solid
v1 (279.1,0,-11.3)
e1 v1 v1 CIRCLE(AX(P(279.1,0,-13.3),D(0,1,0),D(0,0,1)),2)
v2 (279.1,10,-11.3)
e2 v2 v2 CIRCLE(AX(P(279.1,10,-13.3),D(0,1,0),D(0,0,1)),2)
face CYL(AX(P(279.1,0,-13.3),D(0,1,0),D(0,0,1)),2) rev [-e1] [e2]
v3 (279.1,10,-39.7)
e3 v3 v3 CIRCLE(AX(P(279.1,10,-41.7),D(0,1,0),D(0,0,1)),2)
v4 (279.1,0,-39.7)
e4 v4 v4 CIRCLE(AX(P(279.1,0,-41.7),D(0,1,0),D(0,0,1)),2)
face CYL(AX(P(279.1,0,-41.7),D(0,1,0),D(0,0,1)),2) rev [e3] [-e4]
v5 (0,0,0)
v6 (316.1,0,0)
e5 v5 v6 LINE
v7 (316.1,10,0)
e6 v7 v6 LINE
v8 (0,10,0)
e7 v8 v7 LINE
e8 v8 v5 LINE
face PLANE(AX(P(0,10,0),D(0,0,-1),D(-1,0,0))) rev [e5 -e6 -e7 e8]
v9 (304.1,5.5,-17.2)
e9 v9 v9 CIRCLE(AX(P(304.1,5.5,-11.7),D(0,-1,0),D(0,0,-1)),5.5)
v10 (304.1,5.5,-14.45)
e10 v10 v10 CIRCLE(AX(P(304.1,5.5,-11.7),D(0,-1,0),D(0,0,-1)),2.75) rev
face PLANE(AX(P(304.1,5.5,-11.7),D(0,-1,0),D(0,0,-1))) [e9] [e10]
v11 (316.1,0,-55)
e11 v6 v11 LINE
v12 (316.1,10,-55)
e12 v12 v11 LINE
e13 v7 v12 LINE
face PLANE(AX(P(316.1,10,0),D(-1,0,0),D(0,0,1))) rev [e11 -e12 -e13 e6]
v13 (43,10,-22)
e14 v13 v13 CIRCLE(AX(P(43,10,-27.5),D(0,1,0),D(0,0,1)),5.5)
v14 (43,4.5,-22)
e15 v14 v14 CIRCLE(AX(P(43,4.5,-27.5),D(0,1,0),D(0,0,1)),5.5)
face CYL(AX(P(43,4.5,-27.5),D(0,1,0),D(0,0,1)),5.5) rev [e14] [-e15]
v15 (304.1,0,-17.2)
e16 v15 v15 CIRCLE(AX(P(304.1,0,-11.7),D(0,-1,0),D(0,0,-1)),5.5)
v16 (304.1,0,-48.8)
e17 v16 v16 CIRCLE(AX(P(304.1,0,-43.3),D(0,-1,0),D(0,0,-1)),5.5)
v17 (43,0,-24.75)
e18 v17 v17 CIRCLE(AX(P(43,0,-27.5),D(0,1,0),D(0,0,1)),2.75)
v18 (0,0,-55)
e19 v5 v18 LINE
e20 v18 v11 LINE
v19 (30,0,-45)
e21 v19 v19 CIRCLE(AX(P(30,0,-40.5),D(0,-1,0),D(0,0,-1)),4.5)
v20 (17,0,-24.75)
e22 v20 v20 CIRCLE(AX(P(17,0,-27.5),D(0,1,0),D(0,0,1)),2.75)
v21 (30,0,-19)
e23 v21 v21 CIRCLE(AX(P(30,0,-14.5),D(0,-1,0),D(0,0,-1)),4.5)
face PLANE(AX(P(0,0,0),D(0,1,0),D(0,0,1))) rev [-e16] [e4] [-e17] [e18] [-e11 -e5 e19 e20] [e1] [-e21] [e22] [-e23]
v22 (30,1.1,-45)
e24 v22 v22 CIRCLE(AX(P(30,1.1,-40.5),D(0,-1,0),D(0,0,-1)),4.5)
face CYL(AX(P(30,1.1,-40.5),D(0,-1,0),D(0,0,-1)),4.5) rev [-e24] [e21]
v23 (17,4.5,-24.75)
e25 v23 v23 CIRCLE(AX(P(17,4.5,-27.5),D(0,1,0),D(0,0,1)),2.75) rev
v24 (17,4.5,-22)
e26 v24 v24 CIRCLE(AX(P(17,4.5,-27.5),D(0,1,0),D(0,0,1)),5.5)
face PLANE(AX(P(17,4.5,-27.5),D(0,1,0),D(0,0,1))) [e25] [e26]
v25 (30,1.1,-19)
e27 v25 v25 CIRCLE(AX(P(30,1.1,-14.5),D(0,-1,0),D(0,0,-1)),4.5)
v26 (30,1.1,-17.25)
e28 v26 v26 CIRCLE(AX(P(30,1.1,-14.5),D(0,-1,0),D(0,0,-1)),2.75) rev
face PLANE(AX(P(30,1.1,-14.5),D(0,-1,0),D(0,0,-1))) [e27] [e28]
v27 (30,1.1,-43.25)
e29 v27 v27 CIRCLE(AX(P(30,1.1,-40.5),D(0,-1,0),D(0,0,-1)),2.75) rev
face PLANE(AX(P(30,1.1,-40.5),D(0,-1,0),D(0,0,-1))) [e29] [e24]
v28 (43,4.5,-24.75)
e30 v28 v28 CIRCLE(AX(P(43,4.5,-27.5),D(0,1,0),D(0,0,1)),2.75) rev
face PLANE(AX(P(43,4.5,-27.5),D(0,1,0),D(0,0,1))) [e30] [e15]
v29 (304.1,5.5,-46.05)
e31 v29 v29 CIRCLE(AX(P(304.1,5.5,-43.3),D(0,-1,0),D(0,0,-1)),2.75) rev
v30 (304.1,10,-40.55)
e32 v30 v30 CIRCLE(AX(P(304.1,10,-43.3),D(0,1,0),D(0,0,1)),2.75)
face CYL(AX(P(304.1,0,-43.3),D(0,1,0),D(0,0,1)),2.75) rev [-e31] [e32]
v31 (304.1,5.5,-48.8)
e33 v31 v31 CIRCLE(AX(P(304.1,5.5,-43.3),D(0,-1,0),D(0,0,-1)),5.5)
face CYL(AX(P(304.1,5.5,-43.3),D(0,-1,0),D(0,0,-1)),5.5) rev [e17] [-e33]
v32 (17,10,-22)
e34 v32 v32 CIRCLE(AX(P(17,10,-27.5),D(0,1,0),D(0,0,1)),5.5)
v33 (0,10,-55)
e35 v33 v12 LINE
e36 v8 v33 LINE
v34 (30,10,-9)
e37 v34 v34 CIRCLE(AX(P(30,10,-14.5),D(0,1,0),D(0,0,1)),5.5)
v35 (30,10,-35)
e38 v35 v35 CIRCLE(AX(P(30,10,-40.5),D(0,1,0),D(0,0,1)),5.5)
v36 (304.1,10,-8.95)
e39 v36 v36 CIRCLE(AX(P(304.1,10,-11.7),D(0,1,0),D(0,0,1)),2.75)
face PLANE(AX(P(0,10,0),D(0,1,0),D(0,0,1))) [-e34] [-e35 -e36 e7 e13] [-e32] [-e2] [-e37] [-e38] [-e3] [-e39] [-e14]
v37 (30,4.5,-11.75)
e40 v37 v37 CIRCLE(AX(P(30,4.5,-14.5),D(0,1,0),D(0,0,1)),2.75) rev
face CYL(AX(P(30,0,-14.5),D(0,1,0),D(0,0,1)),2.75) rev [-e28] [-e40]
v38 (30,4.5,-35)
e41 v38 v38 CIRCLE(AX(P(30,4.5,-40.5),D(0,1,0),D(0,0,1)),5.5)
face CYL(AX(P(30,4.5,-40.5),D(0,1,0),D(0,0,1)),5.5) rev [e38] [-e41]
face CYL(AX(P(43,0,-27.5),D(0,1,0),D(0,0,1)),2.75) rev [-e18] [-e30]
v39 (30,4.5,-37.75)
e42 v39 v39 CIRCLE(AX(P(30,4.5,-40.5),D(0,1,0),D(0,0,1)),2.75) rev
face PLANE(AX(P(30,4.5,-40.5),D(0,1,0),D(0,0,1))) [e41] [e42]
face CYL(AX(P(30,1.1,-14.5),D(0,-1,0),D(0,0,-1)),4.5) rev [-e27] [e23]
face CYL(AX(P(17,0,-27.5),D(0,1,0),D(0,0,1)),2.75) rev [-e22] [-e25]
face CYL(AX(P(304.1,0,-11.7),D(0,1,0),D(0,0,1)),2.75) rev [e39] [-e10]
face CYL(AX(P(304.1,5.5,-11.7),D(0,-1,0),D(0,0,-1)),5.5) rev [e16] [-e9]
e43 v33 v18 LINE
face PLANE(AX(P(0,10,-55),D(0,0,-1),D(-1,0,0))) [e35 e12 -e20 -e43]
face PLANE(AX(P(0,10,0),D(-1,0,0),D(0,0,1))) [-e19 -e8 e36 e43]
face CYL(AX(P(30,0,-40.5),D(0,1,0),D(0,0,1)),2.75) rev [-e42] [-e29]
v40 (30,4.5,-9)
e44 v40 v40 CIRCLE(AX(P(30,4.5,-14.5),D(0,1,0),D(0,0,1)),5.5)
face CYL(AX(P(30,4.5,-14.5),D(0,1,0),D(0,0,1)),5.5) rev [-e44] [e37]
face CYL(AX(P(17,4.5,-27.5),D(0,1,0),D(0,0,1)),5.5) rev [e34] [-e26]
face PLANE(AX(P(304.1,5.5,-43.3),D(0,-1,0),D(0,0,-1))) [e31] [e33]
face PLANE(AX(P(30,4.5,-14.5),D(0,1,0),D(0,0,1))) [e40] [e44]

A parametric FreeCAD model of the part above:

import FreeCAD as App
import Part
import Sketcher

V = App.Vector


def add_polygon(sketch, points):
    """Adds a closed chain of lines whose ends are joined by coincident constraints."""
    first, n = sketch.GeometryCount, len(points)
    for a, b in zip(points, points[1:] + points[:1]):
        sketch.addGeometry(Part.LineSegment(App.Vector(*a, 0), App.Vector(*b, 0)), False)
    for i in range(n):
        sketch.addConstraint(Sketcher.Constraint("Coincident", first + i, 2, first + (i + 1) % n, 1))

doc = App.newDocument("Part")
body = doc.addObject("PartDesign::Body", "Body")

# Sketch on XZ plane
sketch1 = body.newObject("Sketcher::SketchObject", "Sketch")
sketch1.AttachmentSupport = (doc.getObject("XZ_Plane"), [""])
sketch1.MapMode = "FlatFace"
add_polygon(sketch1, [(0, -55), (0, 0), (316, 0), (316, -55)])  # lines 0-3
sketch1.addConstraint([
    Sketcher.Constraint("Vertical", 0),
    Sketcher.Constraint("Horizontal", 1),
    Sketcher.Constraint("Vertical", 2),
    Sketcher.Constraint("Horizontal", 3),
    Sketcher.Constraint("Coincident", 0, 2, -1, 1),
    Sketcher.Constraint("DistanceY", 0, 1, 0, 2, 55.0),
    Sketcher.Constraint("DistanceX", 1, 1, 1, 2, 316.1),
])
pad1 = body.newObject("PartDesign::Pad", "Pad")
pad1.Profile = sketch1
pad1.Length = 10
pad1.Reversed = True

# Sketch on XZ plane
sketch2 = body.newObject("Sketcher::SketchObject", "Sketch001")
sketch2.AttachmentSupport = (doc.getObject("XZ_Plane"), [""])
sketch2.MapMode = "FlatFace"
sketch2.AttachmentOffset = App.Placement(V(0, 0, -10), App.Rotation())
sketch2.addGeometry([
    Part.Circle(V(279.1, -13.3, 0), V(0, 0, 1), 2),
    Part.Circle(V(279.1, -41.7, 0), V(0, 0, 1), 2),
    Part.Circle(V(304.1, -43.3, 0), V(0, 0, 1), 2.8),
    Part.Circle(V(304.1, -11.7, 0), V(0, 0, 1), 2.8),
], False)
sketch2.addConstraint([
    Sketcher.Constraint("Equal", 0, 1),
    Sketcher.Constraint("Equal", 2, 3),
    Sketcher.Constraint("Vertical", 0, 3, 1, 3),
    Sketcher.Constraint("Vertical", 2, 3, 3, 3),
    Sketcher.Constraint("Diameter", 0, 4.0),
    Sketcher.Constraint("Diameter", 2, 5.5),
    Sketcher.Constraint("DistanceX", 1, 3, 2, 3, 25.0),
    Sketcher.Constraint("DistanceY", 2, 3, 0, 3, 30.0),
    Sketcher.Constraint("DistanceY", 1, 3, 3, 3, 30.0),
    Sketcher.Constraint("DistanceX", -1, 1, 0, 3, 279.1),
    Sketcher.Constraint("DistanceY", 0, 3, -1, 1, 13.3),
    Sketcher.Constraint("DistanceY", 1, 3, -1, 1, 41.7),
])
pocket1 = body.newObject("PartDesign::Pocket", "Pocket")
pocket1.Profile = sketch2
pocket1.Type = "ThroughAll"
pocket1.Reversed = True

# Sketch on XZ plane
sketch3 = body.newObject("Sketcher::SketchObject", "Sketch002")
sketch3.AttachmentSupport = (doc.getObject("XZ_Plane"), [""])
sketch3.MapMode = "FlatFace"
sketch3.addGeometry([
    Part.Circle(V(304, -12, 0), V(0, 0, 1), 6),
    Part.Circle(V(304, -43, 0), V(0, 0, 1), 6),
], False)
sketch3.addConstraint([
    Sketcher.Constraint("Equal", 0, 1),
    Sketcher.Constraint("Vertical", 0, 3, 1, 3),
    Sketcher.Constraint("Diameter", 0, 11.0),
    Sketcher.Constraint("DistanceX", -1, 1, 0, 3, 304.1),
    Sketcher.Constraint("DistanceY", 0, 3, -1, 1, 11.7),
    Sketcher.Constraint("DistanceY", 1, 3, -1, 1, 43.3),
])
pocket2 = body.newObject("PartDesign::Pocket", "Pocket001")
pocket2.Profile = sketch3
pocket2.Length = 5.5

# Sketch on XZ plane
sketch4 = body.newObject("Sketcher::SketchObject", "Sketch003")
sketch4.AttachmentSupport = (doc.getObject("XZ_Plane"), [""])
sketch4.MapMode = "FlatFace"
sketch4.AttachmentOffset = App.Placement(V(0, 0, -10), App.Rotation())
sketch4.addGeometry([
    Part.Circle(V(17, -27.5, 0), V(0, 0, 1), 2.8),
    Part.Circle(V(30, -40.5, 0), V(0, 0, 1), 2.8),
    Part.Circle(V(43, -27.5, 0), V(0, 0, 1), 2.8),
    Part.Circle(V(30, -14.5, 0), V(0, 0, 1), 2.8),
], False)
sketch4.addConstraint([
    Sketcher.Constraint("Equal", 0, 1),
    Sketcher.Constraint("Equal", 1, 2),
    Sketcher.Constraint("Equal", 2, 3),
    Sketcher.Constraint("Horizontal", 0, 3, 2, 3),
    Sketcher.Constraint("Vertical", 1, 3, 3, 3),
    Sketcher.Constraint("Diameter", 0, 5.5),
    Sketcher.Constraint("DistanceX", -1, 1, 0, 3, 17.0),
    Sketcher.Constraint("DistanceX", -1, 1, 1, 3, 30.0),
    Sketcher.Constraint("DistanceX", -1, 1, 2, 3, 43.0),
    Sketcher.Constraint("DistanceY", 1, 3, 0, 3, 13.0),
    Sketcher.Constraint("DistanceY", 0, 3, 3, 3, 13.0),
    Sketcher.Constraint("DistanceY", 0, 3, -1, 1, 27.5),
])
pocket3 = body.newObject("PartDesign::Pocket", "Pocket002")
pocket3.Profile = sketch4
pocket3.Type = "ThroughAll"
pocket3.Reversed = True

# Sketch on XZ plane
sketch5 = body.newObject("Sketcher::SketchObject", "Sketch004")
sketch5.AttachmentSupport = (doc.getObject("XZ_Plane"), [""])
sketch5.MapMode = "FlatFace"
sketch5.addGeometry([
    Part.Circle(V(30, -14.5, 0), V(0, 0, 1), 4.5),
    Part.Circle(V(30, -40.5, 0), V(0, 0, 1), 4.5),
], False)
sketch5.addConstraint([
    Sketcher.Constraint("Equal", 0, 1),
    Sketcher.Constraint("Vertical", 0, 3, 1, 3),
    Sketcher.Constraint("Diameter", 0, 9.0),
    Sketcher.Constraint("DistanceX", -1, 1, 0, 3, 30.0),
    Sketcher.Constraint("DistanceY", 1, 3, 0, 3, 26.0),
    Sketcher.Constraint("DistanceY", 0, 3, -1, 1, 14.5),
])
pocket4 = body.newObject("PartDesign::Pocket", "Pocket003")
pocket4.Profile = sketch5
pocket4.Length = 1.1

# Sketch on XZ plane
sketch6 = body.newObject("Sketcher::SketchObject", "Sketch005")
sketch6.AttachmentSupport = (doc.getObject("XZ_Plane"), [""])
sketch6.MapMode = "FlatFace"
sketch6.AttachmentOffset = App.Placement(V(0, 0, -10), App.Rotation())
sketch6.addGeometry([
    Part.Circle(V(17, -28, 0), V(0, 0, 1), 6),
    Part.Circle(V(30, -40, 0), V(0, 0, 1), 6),
    Part.Circle(V(43, -28, 0), V(0, 0, 1), 6),
    Part.Circle(V(30, -14, 0), V(0, 0, 1), 6),
], False)
sketch6.addConstraint([
    Sketcher.Constraint("Equal", 0, 1),
    Sketcher.Constraint("Equal", 1, 2),
    Sketcher.Constraint("Equal", 2, 3),
    Sketcher.Constraint("Horizontal", 0, 3, 2, 3),
    Sketcher.Constraint("Vertical", 1, 3, 3, 3),
    Sketcher.Constraint("Diameter", 0, 11.0),
    Sketcher.Constraint("DistanceX", -1, 1, 0, 3, 17.0),
    Sketcher.Constraint("DistanceX", -1, 1, 1, 3, 30.0),
    Sketcher.Constraint("DistanceX", -1, 1, 2, 3, 43.0),
    Sketcher.Constraint("DistanceY", 1, 3, 0, 3, 13.0),
    Sketcher.Constraint("DistanceY", 0, 3, 3, 3, 13.0),
    Sketcher.Constraint("DistanceY", 0, 3, -1, 1, 27.5),
])
pocket5 = body.newObject("PartDesign::Pocket", "Pocket004")
pocket5.Profile = sketch6
pocket5.Length = 5.5
pocket5.Reversed = True

doc.recompute()
